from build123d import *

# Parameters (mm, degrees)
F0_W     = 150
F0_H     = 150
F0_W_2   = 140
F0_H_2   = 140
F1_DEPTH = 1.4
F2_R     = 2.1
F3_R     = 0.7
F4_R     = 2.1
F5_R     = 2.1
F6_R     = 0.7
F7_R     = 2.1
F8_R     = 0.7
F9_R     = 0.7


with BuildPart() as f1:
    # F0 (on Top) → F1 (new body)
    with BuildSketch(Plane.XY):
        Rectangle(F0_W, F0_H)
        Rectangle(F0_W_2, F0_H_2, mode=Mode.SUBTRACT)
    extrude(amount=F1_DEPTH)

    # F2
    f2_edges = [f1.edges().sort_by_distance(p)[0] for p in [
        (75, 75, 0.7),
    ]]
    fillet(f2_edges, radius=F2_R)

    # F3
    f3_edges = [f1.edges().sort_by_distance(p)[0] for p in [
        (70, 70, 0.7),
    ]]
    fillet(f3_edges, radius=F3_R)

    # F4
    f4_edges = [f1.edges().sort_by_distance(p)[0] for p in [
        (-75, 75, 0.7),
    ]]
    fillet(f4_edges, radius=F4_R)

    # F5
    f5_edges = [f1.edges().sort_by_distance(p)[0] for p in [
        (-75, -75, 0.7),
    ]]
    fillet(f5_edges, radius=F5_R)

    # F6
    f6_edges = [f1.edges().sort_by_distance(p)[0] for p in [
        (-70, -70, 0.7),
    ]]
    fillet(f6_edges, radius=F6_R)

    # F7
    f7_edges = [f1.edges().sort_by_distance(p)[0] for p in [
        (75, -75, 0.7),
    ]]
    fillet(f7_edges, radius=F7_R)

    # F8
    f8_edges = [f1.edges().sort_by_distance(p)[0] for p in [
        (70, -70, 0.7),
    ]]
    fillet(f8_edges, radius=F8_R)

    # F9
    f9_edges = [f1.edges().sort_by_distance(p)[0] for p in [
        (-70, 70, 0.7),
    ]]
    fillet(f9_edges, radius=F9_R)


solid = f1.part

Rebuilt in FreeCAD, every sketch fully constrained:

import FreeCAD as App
import Part
import Sketcher

V = App.Vector


def edges_at(feature, points):
    """Names of the edges that pass closest to the given points."""
    edges = feature.Shape.Edges
    near = lambda p: min(range(len(edges)), key=lambda i: edges[i].distToShape(Part.Vertex(*p))[0])
    return sorted({f"Edge{near(p) + 1}" for p in points})

doc = App.newDocument("Part")
body = doc.addObject("PartDesign::Body", "Body")

# Sketch on XY plane
sketch1 = body.newObject("Sketcher::SketchObject", "Sketch")
sketch1.AttachmentSupport = (doc.getObject("XY_Plane"), [""])
sketch1.MapMode = "FlatFace"
sketch1.addGeometry([
    Part.LineSegment(V(-75, 75, 0), V(-75, -75, 0)),  # 0
    Part.LineSegment(V(-75, -75, 0), V(75, -75, 0)),  # 1
    Part.LineSegment(V(75, -75, 0), V(75, 75, 0)),  # 2
    Part.LineSegment(V(75, 75, 0), V(-75, 75, 0)),  # 3
    Part.LineSegment(V(70, -70, 0), V(-70, -70, 0)),  # 4
    Part.LineSegment(V(-70, -70, 0), V(-70, 70, 0)),  # 5
    Part.LineSegment(V(-70, 70, 0), V(70, 70, 0)),  # 6
    Part.LineSegment(V(70, 70, 0), V(70, -70, 0)),  # 7
], False)
sketch1.addConstraint([
    Sketcher.Constraint("Coincident", 0, 2, 1, 1),
    Sketcher.Constraint("Coincident", 1, 2, 2, 1),
    Sketcher.Constraint("Coincident", 2, 2, 3, 1),
    Sketcher.Constraint("Coincident", 3, 2, 0, 1),
    Sketcher.Constraint("Coincident", 4, 2, 5, 1),
    Sketcher.Constraint("Coincident", 5, 2, 6, 1),
    Sketcher.Constraint("Coincident", 6, 2, 7, 1),
    Sketcher.Constraint("Coincident", 7, 2, 4, 1),
    Sketcher.Constraint("Vertical", 0),
    Sketcher.Constraint("Horizontal", 1),
    Sketcher.Constraint("Vertical", 2),
    Sketcher.Constraint("Horizontal", 3),
    Sketcher.Constraint("Horizontal", 4),
    Sketcher.Constraint("Vertical", 5),
    Sketcher.Constraint("Horizontal", 6),
    Sketcher.Constraint("Vertical", 7),
    Sketcher.Constraint("Symmetric", 0, 2, 2, 2, -1, 1),
    Sketcher.Constraint("Symmetric", 4, 2, 6, 2, -1, 1),
    Sketcher.Constraint("Equal", 3, 0),
    Sketcher.Constraint("Equal", 6, 5),
    Sketcher.Constraint("DistanceX", 1, 1, 1, 2, 150.0),
    Sketcher.Constraint("DistanceX", 4, 2, 4, 1, 140.0),
])
pad1 = body.newObject("PartDesign::Pad", "Pad")
pad1.Profile = sketch1
pad1.Length = 1.4
doc.recompute()

fillet = body.newObject("PartDesign::Fillet", "Fillet")
fillet.Base = (pad1, edges_at(pad1, [(75, 75, 0.7)]))
fillet.Radius = 2.1
doc.recompute()

fillet2 = body.newObject("PartDesign::Fillet", "Fillet001")
fillet2.Base = (fillet, edges_at(fillet, [(70, 70, 0.7)]))
fillet2.Radius = 0.7
doc.recompute()

fillet3 = body.newObject("PartDesign::Fillet", "Fillet002")
fillet3.Base = (fillet2, edges_at(fillet2, [(-75, 75, 0.7)]))
fillet3.Radius = 2.1
doc.recompute()

fillet4 = body.newObject("PartDesign::Fillet", "Fillet003")
fillet4.Base = (fillet3, edges_at(fillet3, [(-75, -75, 0.7)]))
fillet4.Radius = 2.1
doc.recompute()

fillet5 = body.newObject("PartDesign::Fillet", "Fillet004")
fillet5.Base = (fillet4, edges_at(fillet4, [(-70, -70, 0.7)]))
fillet5.Radius = 0.7
doc.recompute()

fillet6 = body.newObject("PartDesign::Fillet", "Fillet005")
fillet6.Base = (fillet5, edges_at(fillet5, [(75, -75, 0.7)]))
fillet6.Radius = 2.1
doc.recompute()

fillet7 = body.newObject("PartDesign::Fillet", "Fillet006")
fillet7.Base = (fillet6, edges_at(fillet6, [(70, -70, 0.7)]))
fillet7.Radius = 0.7
doc.recompute()

fillet8 = body.newObject("PartDesign::Fillet", "Fillet007")
fillet8.Base = (fillet7, edges_at(fillet7, [(-70, 70, 0.7)]))
fillet8.Radius = 0.7

doc.recompute()
